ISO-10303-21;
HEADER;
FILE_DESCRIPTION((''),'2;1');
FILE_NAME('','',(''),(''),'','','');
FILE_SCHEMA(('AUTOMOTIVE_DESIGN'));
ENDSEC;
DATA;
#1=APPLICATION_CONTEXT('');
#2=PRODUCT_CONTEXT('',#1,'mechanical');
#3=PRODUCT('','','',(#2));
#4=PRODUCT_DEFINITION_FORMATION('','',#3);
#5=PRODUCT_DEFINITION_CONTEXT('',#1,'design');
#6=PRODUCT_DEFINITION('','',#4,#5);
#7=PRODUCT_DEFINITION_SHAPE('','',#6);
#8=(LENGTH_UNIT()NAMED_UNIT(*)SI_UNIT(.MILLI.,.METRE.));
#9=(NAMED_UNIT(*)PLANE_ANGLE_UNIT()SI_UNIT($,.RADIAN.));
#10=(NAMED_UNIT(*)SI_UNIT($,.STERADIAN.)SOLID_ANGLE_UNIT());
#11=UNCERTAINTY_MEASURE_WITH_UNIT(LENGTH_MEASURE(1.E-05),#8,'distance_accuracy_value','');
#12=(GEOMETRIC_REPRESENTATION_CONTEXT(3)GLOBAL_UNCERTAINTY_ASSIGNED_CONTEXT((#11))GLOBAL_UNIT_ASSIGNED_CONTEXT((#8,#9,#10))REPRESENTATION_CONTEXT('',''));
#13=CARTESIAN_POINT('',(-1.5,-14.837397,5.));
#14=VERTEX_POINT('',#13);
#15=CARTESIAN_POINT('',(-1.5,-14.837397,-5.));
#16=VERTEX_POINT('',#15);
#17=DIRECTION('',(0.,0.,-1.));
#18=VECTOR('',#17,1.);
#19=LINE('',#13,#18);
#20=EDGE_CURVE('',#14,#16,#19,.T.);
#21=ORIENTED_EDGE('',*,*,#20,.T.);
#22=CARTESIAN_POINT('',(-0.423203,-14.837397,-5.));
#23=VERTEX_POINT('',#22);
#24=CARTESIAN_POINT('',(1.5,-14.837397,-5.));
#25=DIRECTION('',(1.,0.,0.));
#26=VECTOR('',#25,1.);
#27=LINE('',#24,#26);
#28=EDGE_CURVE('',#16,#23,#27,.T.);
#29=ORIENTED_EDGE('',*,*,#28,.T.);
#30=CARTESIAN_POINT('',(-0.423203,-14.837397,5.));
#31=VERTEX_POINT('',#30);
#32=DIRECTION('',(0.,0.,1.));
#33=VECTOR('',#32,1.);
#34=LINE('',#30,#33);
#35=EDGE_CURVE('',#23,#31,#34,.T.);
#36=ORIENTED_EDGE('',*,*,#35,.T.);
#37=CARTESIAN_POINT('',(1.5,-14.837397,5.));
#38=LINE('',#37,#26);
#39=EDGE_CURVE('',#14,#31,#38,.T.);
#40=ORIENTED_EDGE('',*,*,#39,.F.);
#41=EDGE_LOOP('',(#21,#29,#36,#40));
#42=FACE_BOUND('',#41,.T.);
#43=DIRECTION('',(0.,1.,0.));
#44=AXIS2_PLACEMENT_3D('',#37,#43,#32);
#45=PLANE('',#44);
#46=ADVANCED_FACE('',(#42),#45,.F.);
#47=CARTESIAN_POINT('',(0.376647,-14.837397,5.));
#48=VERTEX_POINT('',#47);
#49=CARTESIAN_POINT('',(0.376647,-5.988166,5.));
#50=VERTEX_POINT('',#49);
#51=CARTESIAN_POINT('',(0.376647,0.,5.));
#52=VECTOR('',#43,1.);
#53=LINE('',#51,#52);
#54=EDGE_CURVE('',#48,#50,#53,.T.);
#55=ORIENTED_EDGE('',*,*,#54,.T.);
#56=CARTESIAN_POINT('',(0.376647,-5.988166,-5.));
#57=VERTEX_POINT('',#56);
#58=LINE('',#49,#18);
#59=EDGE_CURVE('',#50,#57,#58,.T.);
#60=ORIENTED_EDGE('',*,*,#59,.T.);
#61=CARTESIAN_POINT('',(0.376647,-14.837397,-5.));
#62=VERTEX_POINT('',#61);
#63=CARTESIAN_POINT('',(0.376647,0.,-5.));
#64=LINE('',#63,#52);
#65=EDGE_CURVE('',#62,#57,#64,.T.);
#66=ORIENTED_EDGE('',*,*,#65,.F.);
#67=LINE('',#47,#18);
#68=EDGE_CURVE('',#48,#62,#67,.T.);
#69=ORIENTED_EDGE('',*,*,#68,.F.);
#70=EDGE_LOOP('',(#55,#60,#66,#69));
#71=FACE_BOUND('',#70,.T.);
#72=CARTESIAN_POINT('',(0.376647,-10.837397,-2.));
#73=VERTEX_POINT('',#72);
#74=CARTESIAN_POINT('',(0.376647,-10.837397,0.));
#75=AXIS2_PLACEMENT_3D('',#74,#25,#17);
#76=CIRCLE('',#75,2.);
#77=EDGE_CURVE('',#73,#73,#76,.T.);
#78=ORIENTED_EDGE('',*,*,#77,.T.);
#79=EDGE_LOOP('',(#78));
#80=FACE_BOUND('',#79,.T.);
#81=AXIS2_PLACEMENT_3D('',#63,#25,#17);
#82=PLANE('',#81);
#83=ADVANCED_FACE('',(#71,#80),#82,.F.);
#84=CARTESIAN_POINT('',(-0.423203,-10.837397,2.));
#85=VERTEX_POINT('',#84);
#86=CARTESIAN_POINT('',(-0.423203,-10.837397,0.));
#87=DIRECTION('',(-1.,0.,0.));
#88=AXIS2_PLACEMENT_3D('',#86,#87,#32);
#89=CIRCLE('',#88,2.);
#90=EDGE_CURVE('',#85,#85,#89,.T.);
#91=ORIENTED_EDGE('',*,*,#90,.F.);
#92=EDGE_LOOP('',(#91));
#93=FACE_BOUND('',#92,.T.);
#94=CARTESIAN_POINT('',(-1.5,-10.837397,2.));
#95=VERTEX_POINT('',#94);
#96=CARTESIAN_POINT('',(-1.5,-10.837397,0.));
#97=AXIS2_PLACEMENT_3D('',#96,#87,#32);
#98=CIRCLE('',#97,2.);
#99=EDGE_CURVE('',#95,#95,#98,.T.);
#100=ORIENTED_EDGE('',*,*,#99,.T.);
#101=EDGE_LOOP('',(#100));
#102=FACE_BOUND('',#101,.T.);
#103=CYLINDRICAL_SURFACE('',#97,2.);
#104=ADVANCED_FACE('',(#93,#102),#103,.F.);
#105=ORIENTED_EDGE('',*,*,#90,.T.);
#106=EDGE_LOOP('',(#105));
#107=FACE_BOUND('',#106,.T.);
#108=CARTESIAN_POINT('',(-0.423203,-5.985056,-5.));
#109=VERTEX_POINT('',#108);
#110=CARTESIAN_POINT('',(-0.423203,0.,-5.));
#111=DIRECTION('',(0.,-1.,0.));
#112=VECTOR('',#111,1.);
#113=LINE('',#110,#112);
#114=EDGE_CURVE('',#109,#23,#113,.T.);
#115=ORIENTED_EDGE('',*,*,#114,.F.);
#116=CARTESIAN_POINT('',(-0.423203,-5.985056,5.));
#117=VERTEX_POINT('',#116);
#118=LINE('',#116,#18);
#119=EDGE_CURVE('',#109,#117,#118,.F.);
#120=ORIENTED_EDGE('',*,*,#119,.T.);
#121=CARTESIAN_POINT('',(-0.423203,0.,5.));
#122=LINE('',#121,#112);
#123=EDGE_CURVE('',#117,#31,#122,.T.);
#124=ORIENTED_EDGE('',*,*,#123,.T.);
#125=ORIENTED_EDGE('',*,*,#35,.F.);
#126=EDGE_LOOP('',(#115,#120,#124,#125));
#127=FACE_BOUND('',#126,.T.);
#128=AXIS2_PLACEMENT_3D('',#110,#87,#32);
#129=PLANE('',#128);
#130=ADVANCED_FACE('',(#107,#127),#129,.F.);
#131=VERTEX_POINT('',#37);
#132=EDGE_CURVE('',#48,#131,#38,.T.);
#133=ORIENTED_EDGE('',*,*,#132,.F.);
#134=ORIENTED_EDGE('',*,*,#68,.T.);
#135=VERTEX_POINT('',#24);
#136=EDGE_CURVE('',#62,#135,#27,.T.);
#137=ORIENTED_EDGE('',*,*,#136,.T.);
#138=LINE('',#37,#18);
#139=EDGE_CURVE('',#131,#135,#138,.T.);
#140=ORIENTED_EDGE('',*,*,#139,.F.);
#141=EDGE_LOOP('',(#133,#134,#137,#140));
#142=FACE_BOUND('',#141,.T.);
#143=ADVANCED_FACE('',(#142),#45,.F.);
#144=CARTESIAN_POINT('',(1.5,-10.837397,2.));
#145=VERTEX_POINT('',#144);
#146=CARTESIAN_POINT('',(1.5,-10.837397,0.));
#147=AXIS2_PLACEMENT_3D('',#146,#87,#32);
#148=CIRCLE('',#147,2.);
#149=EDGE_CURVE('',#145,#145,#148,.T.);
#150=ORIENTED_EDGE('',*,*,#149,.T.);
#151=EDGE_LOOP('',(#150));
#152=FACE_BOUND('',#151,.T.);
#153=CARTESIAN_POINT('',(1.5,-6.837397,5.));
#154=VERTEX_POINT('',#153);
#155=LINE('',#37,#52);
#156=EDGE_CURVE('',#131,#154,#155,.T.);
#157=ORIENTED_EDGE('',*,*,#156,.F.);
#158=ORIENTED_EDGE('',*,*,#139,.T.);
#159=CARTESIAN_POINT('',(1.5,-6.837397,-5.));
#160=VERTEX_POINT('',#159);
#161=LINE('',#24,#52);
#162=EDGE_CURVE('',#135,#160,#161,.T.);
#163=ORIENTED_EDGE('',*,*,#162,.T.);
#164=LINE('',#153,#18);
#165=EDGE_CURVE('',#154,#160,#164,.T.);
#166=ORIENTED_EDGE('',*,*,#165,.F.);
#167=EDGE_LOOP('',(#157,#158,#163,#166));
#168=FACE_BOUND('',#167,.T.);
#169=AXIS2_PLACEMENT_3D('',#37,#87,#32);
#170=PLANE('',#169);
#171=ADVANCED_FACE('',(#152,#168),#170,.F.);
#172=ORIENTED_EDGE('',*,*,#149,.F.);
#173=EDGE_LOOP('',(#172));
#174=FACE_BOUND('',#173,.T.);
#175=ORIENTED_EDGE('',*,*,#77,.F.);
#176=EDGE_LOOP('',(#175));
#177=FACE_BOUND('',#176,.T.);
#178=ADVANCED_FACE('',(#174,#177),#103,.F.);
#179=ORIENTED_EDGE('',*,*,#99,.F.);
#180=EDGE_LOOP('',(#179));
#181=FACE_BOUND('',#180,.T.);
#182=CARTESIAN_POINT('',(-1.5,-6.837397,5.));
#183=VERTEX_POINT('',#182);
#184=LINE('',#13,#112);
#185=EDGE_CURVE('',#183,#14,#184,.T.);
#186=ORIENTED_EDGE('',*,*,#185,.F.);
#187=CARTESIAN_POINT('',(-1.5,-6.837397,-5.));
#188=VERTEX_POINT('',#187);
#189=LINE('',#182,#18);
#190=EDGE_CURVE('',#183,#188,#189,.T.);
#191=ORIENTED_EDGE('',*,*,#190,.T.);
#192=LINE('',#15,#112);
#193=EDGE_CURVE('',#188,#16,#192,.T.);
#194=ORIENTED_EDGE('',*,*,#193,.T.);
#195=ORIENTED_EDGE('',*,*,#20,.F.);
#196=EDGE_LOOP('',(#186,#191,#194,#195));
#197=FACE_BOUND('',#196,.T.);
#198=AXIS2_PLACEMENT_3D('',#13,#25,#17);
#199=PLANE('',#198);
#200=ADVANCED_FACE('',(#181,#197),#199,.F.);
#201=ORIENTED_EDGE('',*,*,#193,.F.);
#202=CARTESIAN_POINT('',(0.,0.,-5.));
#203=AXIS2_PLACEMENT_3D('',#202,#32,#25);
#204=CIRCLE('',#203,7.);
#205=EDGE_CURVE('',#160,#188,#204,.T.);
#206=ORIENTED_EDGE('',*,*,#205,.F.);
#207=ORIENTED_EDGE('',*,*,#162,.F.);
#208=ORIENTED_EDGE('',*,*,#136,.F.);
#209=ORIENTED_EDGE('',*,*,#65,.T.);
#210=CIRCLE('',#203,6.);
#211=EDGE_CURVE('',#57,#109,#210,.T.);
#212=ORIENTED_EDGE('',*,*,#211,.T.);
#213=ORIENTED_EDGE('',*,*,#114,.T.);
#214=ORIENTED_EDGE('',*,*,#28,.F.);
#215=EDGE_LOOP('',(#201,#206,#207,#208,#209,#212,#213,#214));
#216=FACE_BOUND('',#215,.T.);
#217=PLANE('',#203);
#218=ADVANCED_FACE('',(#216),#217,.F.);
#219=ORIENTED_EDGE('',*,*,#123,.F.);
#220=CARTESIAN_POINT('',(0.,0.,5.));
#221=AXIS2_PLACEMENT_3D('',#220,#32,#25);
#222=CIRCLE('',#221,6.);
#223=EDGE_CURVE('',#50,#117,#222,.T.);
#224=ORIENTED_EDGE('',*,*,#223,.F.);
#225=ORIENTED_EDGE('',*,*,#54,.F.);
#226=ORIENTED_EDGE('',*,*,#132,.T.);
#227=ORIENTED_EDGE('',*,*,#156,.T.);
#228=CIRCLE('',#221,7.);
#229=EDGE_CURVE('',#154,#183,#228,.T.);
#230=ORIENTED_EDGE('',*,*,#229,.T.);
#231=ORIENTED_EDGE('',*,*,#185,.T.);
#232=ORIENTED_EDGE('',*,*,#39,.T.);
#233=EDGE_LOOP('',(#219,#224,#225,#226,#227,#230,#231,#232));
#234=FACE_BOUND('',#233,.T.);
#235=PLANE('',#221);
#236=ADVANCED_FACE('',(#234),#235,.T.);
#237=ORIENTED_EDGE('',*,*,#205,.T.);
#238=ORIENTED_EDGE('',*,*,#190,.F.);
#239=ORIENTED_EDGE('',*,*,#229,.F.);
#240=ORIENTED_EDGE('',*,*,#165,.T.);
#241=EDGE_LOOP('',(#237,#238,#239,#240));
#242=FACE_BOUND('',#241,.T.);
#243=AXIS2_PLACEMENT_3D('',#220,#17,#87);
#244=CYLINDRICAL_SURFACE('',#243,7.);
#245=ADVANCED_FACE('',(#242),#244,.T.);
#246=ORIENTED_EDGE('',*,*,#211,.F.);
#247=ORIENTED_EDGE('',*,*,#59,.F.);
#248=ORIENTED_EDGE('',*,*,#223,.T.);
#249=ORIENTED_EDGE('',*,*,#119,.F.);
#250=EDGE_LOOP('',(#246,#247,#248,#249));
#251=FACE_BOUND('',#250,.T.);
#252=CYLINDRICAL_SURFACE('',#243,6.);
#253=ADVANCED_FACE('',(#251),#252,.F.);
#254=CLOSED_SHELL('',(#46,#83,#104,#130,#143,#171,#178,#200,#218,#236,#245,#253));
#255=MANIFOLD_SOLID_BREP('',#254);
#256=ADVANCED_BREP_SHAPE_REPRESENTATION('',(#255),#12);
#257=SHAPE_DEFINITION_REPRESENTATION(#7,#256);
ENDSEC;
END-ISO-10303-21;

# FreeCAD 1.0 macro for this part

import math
import FreeCAD as App
import Part
import Sketcher
from FreeCAD import Vector
Q = App.Units.Quantity

doc = App.newDocument("Part")
body = doc.addObject("PartDesign::Body", "Body")

# Sketch on XY plane
sketch1 = doc.addObject("Sketcher::SketchObject", "Sketch")
body.addObject(sketch1)
sketch1.AttachmentSupport = (doc.XY_Plane, [""])
sketch1.MapMode = "FlatFace"
sketch1.addGeometry(Part.LineSegment(Vector(-1.5, -14.8, 0), Vector(1.5, -14.8, 0)), False)
sketch1.addGeometry(Part.LineSegment(Vector(1.5, -14.8, 0), Vector(1.5, -6.8, 0)), False)
sketch1.addGeometry(Part.ArcOfCircle(Part.Circle(Vector(0, 0, 0), Vector(0, 0, 1), 7), math.radians(-78), math.radians(258)), False)
sketch1.addGeometry(Part.LineSegment(Vector(-1.5, -6.8, 0), Vector(-1.5, -14.8, 0)), False)
sketch1.addGeometry(Part.Circle(Vector(0, 0, 0), Vector(0, 0, 1), 6), False)
sketch1.addConstraint(Sketcher.Constraint("Coincident", 0, 2, 1, 1))
sketch1.addConstraint(Sketcher.Constraint("Coincident", 1, 2, 2, 1))
sketch1.addConstraint(Sketcher.Constraint("Coincident", 2, 2, 3, 1))
sketch1.addConstraint(Sketcher.Constraint("Coincident", 3, 2, 0, 1))
sketch1.addConstraint(Sketcher.Constraint("Horizontal", 0))
sketch1.addConstraint(Sketcher.Constraint("Vertical", 1))
sketch1.addConstraint(Sketcher.Constraint("Vertical", 3))
sketch1.addConstraint(Sketcher.Constraint("Coincident", 2, 3, -1, 1))
sketch1.addConstraint(Sketcher.Constraint("Coincident", 4, 3, -1, 1))
sketch1.addConstraint(Sketcher.Constraint("Horizontal", 1, 2, 2, 2))
sketch1.addConstraint(Sketcher.Constraint("Diameter", 4, Q("12 mm")))
sketch1.addConstraint(Sketcher.Constraint("Radius", 2, Q("7 mm")))
sketch1.addConstraint(Sketcher.Constraint("DistanceX", 0, 1, 0, 2, Q("3 mm")))
sketch1.addConstraint(Sketcher.Constraint("DistanceY", 1, 1, 1, 2, Q("8 mm")))
pad1 = doc.addObject("PartDesign::Pad", "Pad")
body.addObject(pad1)
pad1.Profile = sketch1
pad1.Length = 10
pad1.Midplane = True

# Sketch on XY plane
sketch2 = doc.addObject("Sketcher::SketchObject", "Sketch001")
body.addObject(sketch2)
sketch2.AttachmentSupport = (doc.XY_Plane, [""])
sketch2.MapMode = "FlatFace"
sketch2.AttachmentOffset = App.Placement(Vector(0, 0, 5), App.Rotation())
sketch2.addGeometry(Part.LineSegment(Vector(-0.4, 0, 0), Vector(-0.4, -15.2, 0)), False)
sketch2.addGeometry(Part.LineSegment(Vector(-0.4, -15.2, 0), Vector(0.4, -15.2, 0)), False)
sketch2.addGeometry(Part.LineSegment(Vector(0.4, -15.2, 0), Vector(0.4, 0, 0)), False)
sketch2.addGeometry(Part.LineSegment(Vector(0.4, 0, 0), Vector(-0.4, 0, 0)), False)
sketch2.addConstraint(Sketcher.Constraint("Coincident", 0, 2, 1, 1))
sketch2.addConstraint(Sketcher.Constraint("Coincident", 1, 2, 2, 1))
sketch2.addConstraint(Sketcher.Constraint("Coincident", 2, 2, 3, 1))
sketch2.addConstraint(Sketcher.Constraint("Coincident", 3, 2, 0, 1))
sketch2.addConstraint(Sketcher.Constraint("Vertical", 0))
sketch2.addConstraint(Sketcher.Constraint("Horizontal", 1))
sketch2.addConstraint(Sketcher.Constraint("Vertical", 2))
sketch2.addConstraint(Sketcher.Constraint("Horizontal", 3))
sketch2.addConstraint(Sketcher.Constraint("PointOnObject", 2, 2, -1))
sketch2.addConstraint(Sketcher.Constraint("DistanceX", 1, 1, 1, 2, Q("0.79985 mm")))
sketch2.addConstraint(Sketcher.Constraint("DistanceY", 0, 2, 0, 1, Q("15.185524 mm")))
sketch2.addConstraint(Sketcher.Constraint("DistanceX", 0, 2, -1, 1, Q("0.423203 mm")))
pocket1 = doc.addObject("PartDesign::Pocket", "Pocket")
body.addObject(pocket1)
pocket1.Profile = sketch2
pocket1.Type = "ThroughAll"

# Sketch on YZ plane
sketch3 = doc.addObject("Sketcher::SketchObject", "Sketch002")
body.addObject(sketch3)
sketch3.AttachmentSupport = (doc.YZ_Plane, [""])
sketch3.MapMode = "FlatFace"
sketch3.AttachmentOffset = App.Placement(Vector(0, 0, -1.5), App.Rotation())
sketch3.addGeometry(Part.Circle(Vector(-10.8, 0, 0), Vector(0, 0, 1), 2), False)
sketch3.addConstraint(Sketcher.Constraint("PointOnObject", 0, 3, -1))
sketch3.addConstraint(Sketcher.Constraint("Diameter", 0, Q("4 mm")))
sketch3.addConstraint(Sketcher.Constraint("DistanceX", 0, 3, -1, 1, Q("10.837397 mm")))
doc.recompute()
hole = doc.addObject("PartDesign::Hole", "Hole")
body.addObject(hole)
hole.Profile = sketch3
hole.ThreadType = "None"
hole.Diameter = 4
hole.DepthType = "Dimension"
hole.Depth = 32.5
hole.DrillPoint = "Angled"
hole.DrillPointAngle = 118
hole.Reversed = True

doc.recompute()
